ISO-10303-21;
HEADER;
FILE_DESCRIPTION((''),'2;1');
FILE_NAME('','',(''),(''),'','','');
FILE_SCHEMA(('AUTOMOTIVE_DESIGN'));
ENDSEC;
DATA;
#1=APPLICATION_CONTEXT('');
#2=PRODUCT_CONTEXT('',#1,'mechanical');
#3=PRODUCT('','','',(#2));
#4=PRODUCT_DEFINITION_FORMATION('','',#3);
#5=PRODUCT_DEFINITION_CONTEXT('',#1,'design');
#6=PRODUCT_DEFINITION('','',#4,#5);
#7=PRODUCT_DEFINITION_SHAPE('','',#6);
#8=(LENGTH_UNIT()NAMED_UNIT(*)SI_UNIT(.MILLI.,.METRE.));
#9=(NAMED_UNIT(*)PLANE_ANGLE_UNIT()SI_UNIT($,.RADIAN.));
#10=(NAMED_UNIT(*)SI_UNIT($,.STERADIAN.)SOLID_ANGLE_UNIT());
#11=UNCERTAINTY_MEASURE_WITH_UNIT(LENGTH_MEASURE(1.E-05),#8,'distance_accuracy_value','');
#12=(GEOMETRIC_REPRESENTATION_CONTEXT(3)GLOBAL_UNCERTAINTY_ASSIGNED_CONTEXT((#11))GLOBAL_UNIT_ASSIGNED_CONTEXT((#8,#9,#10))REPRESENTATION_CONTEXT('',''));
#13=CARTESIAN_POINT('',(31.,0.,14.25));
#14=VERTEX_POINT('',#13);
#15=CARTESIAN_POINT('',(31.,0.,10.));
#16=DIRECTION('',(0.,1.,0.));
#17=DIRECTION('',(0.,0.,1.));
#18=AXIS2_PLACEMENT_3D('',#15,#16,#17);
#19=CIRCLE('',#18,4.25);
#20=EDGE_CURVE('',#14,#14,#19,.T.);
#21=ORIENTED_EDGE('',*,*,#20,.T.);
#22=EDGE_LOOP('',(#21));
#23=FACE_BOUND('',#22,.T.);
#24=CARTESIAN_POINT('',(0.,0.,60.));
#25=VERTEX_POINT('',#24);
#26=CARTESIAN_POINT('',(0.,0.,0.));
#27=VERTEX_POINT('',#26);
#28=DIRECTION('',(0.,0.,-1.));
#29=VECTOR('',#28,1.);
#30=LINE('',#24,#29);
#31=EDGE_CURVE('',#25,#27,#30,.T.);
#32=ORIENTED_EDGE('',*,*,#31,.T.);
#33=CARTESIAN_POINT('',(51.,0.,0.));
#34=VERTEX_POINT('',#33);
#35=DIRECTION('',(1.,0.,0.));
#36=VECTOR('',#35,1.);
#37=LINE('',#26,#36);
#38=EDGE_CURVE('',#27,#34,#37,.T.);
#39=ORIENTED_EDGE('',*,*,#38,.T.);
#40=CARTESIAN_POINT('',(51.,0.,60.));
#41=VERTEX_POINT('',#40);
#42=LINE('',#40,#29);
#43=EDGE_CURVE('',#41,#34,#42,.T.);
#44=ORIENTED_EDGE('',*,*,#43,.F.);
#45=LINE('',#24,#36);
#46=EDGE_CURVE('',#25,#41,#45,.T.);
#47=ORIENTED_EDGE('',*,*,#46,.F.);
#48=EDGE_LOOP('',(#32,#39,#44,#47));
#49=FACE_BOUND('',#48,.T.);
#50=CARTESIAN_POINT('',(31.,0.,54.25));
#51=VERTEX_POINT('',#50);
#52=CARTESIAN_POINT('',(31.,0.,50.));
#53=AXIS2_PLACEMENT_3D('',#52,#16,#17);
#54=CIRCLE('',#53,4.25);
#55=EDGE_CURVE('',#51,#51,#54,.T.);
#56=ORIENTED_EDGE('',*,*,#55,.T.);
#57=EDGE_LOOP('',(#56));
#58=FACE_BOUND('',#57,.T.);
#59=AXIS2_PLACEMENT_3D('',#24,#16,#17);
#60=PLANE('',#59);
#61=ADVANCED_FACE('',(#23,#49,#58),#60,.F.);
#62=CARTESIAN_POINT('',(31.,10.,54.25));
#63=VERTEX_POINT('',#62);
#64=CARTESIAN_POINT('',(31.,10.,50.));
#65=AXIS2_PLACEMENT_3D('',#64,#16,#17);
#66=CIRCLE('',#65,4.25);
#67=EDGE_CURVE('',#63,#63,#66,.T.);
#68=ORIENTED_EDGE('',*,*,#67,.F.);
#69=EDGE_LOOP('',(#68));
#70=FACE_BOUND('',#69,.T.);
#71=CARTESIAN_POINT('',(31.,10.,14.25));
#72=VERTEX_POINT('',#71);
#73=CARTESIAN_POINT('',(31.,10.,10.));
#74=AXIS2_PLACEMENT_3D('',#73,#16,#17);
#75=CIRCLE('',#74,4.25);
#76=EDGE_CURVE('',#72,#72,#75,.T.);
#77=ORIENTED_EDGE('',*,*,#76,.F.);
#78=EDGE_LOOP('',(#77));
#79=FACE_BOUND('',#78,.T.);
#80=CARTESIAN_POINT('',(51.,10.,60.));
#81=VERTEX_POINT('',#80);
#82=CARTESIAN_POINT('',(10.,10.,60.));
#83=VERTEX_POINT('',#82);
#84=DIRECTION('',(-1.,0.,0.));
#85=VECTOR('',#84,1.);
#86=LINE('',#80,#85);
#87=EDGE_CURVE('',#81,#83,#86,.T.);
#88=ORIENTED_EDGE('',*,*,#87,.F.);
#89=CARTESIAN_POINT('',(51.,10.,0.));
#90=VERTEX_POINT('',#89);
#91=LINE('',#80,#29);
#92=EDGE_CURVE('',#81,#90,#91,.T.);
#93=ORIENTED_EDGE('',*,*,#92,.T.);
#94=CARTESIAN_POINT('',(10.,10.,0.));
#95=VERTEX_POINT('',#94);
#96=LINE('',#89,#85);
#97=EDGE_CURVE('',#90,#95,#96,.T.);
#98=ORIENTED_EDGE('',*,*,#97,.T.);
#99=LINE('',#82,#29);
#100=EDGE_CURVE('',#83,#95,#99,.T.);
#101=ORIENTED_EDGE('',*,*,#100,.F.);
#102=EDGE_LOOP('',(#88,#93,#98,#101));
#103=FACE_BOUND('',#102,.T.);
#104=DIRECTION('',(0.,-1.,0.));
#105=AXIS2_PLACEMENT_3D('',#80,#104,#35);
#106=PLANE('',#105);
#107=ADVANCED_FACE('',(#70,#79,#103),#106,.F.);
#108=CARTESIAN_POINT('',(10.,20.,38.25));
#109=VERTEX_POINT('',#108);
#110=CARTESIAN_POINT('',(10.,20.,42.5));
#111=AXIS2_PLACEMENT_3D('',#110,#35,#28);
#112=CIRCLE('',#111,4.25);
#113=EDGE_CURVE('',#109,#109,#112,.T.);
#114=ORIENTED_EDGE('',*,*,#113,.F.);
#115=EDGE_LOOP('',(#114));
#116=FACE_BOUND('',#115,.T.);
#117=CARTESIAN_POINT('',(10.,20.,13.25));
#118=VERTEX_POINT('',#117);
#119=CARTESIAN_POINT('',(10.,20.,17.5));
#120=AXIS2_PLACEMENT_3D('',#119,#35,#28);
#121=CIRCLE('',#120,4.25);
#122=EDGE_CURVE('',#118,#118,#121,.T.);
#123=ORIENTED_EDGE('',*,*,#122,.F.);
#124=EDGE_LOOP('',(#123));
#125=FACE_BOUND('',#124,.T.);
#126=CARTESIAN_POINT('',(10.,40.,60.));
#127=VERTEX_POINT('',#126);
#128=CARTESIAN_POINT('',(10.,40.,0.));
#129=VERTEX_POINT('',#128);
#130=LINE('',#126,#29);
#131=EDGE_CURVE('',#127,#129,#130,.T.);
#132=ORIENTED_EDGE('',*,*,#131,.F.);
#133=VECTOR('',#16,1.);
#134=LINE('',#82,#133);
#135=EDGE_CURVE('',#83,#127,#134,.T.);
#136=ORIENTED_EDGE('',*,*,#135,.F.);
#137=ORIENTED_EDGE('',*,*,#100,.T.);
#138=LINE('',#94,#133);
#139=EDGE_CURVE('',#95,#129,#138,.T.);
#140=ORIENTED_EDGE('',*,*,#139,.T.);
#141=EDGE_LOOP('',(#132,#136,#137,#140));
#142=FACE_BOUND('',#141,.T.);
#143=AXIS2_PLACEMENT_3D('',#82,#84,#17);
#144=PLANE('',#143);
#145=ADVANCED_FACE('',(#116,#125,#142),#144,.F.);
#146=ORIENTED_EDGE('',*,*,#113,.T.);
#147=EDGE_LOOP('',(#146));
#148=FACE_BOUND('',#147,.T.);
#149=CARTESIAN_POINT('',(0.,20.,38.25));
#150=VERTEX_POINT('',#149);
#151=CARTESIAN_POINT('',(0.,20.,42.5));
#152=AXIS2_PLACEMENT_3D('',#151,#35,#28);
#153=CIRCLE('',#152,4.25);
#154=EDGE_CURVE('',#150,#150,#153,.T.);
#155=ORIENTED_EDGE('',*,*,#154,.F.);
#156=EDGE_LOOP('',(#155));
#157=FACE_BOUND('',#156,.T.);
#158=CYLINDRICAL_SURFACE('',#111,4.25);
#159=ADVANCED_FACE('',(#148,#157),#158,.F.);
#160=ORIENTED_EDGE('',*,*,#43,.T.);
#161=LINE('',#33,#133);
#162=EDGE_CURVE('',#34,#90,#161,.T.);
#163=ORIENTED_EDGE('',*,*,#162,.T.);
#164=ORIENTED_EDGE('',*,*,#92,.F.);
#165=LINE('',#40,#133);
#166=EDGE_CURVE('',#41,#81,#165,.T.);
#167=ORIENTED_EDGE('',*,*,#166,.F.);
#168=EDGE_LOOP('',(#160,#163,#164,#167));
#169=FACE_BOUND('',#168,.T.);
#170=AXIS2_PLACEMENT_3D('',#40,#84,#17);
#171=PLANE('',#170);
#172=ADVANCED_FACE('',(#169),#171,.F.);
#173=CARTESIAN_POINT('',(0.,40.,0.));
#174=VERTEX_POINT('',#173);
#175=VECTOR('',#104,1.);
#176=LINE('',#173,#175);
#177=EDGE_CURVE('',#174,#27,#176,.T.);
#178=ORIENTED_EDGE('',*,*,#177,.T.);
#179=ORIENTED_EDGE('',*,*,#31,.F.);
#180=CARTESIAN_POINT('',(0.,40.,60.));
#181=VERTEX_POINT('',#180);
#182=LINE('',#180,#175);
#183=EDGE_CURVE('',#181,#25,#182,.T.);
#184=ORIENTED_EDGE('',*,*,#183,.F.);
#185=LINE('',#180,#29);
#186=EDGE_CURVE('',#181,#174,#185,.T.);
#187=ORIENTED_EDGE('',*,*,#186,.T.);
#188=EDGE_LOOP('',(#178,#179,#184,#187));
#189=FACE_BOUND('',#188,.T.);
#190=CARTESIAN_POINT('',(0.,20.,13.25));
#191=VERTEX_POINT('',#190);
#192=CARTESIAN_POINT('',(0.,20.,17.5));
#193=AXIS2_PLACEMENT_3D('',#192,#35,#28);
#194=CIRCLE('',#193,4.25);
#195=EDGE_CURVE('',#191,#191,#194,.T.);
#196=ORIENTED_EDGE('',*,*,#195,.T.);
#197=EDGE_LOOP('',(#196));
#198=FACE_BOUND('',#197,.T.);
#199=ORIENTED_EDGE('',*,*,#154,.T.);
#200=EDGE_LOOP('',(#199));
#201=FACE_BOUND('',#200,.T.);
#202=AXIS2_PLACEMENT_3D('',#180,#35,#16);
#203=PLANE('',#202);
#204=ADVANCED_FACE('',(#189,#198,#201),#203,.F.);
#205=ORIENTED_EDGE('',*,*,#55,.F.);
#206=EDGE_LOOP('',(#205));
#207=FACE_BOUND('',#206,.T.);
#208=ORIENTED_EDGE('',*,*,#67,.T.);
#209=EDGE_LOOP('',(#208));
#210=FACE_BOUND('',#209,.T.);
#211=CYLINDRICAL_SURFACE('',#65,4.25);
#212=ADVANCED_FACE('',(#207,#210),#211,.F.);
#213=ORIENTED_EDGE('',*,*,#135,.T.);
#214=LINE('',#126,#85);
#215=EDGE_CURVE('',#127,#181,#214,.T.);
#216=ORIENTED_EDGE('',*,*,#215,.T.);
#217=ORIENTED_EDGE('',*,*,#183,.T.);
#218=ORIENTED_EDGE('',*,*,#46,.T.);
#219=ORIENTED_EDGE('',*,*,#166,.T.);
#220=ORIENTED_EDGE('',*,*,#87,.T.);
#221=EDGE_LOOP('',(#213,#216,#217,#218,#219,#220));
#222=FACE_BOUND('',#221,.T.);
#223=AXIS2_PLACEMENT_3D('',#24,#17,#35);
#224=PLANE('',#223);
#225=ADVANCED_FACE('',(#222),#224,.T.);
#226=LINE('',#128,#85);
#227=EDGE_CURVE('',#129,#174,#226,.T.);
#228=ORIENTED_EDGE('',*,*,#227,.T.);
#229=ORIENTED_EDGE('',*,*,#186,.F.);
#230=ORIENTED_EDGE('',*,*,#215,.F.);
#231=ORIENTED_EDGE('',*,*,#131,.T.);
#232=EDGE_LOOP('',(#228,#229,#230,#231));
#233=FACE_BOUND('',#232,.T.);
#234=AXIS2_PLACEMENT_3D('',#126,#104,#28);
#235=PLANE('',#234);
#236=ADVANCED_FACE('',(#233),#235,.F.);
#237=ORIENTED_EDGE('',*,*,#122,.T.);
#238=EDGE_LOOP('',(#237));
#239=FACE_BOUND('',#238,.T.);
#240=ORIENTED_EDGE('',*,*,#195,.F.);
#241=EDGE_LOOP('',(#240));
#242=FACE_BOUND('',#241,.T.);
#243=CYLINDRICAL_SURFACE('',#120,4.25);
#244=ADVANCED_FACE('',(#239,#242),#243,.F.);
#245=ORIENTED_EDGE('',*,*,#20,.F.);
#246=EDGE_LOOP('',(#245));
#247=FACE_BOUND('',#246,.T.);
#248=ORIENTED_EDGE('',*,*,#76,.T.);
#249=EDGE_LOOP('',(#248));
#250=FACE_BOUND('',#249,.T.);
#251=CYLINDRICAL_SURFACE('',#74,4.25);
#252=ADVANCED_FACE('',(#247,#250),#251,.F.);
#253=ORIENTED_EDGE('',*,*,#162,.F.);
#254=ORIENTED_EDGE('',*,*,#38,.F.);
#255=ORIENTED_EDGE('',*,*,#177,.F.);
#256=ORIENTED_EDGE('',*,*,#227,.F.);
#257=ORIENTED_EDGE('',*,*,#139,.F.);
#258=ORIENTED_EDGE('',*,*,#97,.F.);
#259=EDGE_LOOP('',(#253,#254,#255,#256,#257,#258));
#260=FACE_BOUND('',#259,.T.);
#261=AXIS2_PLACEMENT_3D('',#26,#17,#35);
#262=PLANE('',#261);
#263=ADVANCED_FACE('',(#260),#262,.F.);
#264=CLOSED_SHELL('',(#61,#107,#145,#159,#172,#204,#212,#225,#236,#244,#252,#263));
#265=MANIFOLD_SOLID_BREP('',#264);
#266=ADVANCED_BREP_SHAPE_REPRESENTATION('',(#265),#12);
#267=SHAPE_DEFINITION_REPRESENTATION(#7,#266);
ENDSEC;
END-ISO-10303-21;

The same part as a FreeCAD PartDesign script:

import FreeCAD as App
import Part
import Sketcher
Q = App.Units.Quantity


def add_polygon(sketch, points):
    """Adds a closed chain of lines whose ends are joined by coincident constraints."""
    first, n = sketch.GeometryCount, len(points)
    for a, b in zip(points, points[1:] + points[:1]):
        sketch.addGeometry(Part.LineSegment(App.Vector(*a, 0), App.Vector(*b, 0)), False)
    for i in range(n):
        sketch.addConstraint(Sketcher.Constraint("Coincident", first + i, 2, first + (i + 1) % n, 1))

doc = App.newDocument("Part")
body = doc.addObject("PartDesign::Body", "Body")

# Sketch on XY plane
sketch1 = body.newObject("Sketcher::SketchObject", "Sketch")
sketch1.AttachmentSupport = (doc.getObject("XY_Plane"), [""])
sketch1.MapMode = "FlatFace"
add_polygon(sketch1, [(0, 40), (0, 0), (51, 0), (51, 10), (10, 10), (10, 40)])  # lines 0-5
sketch1.addConstraint([
    Sketcher.Constraint("Vertical", 0),
    Sketcher.Constraint("Horizontal", 1),
    Sketcher.Constraint("Vertical", 2),
    Sketcher.Constraint("Horizontal", 3),
    Sketcher.Constraint("Vertical", 4),
    Sketcher.Constraint("Horizontal", 5),
    Sketcher.Constraint("Coincident", 0, 2, -1, 1),
    Sketcher.Constraint("Equal", 5, 2),
    Sketcher.Constraint("DistanceX", 1, 1, 1, 2, Q("51 mm")),
    Sketcher.Constraint("DistanceX", 3, 2, 3, 1, Q("41 mm")),
    Sketcher.Constraint("DistanceY", 0, 2, 0, 1, Q("40 mm")),
])
pad1 = body.newObject("PartDesign::Pad", "Pad")
pad1.Profile = sketch1
pad1.Length = 60

# Sketch on YZ plane
sketch2 = body.newObject("Sketcher::SketchObject", "Sketch001")
sketch2.AttachmentSupport = (doc.getObject("YZ_Plane"), [""])
sketch2.MapMode = "FlatFace"
sketch2.AttachmentOffset = App.Placement(App.Vector(0, 0, 10), App.Rotation())
sketch2.addGeometry([
    Part.Circle(App.Vector(20, 42.5, 0), App.Vector(0, 0, 1), 4.2),
    Part.Circle(App.Vector(20, 17.5, 0), App.Vector(0, 0, 1), 4.2),
], False)
sketch2.addConstraint([
    Sketcher.Constraint("Equal", 0, 1),
    Sketcher.Constraint("Vertical", 0, 3, 1, 3),
    Sketcher.Constraint("Diameter", 0, Q("8.5 mm")),
    Sketcher.Constraint("DistanceX", -1, 1, 0, 3, Q("20 mm")),
    Sketcher.Constraint("DistanceY", 1, 3, 0, 3, Q("25 mm")),
    Sketcher.Constraint("DistanceY", -1, 1, 0, 3, Q("42.5 mm")),
])
doc.recompute()
hole = body.newObject("PartDesign::Hole", "Hole")
hole.Profile = sketch2
hole.ThreadType = "None"
hole.Diameter = 8.5
hole.DepthType = "ThroughAll"

# Sketch on XZ plane
sketch3 = body.newObject("Sketcher::SketchObject", "Sketch002")
sketch3.AttachmentSupport = (doc.getObject("XZ_Plane"), [""])
sketch3.MapMode = "FlatFace"
sketch3.AttachmentOffset = App.Placement(App.Vector(0, 0, -10), App.Rotation())
sketch3.addGeometry([
    Part.Circle(App.Vector(31, 50, 0), App.Vector(0, 0, 1), 4.2),
    Part.Circle(App.Vector(31, 10, 0), App.Vector(0, 0, 1), 4.2),
], False)
sketch3.addConstraint([
    Sketcher.Constraint("Equal", 0, 1),
    Sketcher.Constraint("Vertical", 0, 3, 1, 3),
    Sketcher.Constraint("Diameter", 0, Q("8.5 mm")),
    Sketcher.Constraint("DistanceX", -1, 1, 0, 3, Q("31 mm")),
    Sketcher.Constraint("DistanceY", -1, 1, 0, 3, Q("50 mm")),
    Sketcher.Constraint("DistanceY", -1, 1, 1, 3, Q("10 mm")),
])
doc.recompute()
hole2 = body.newObject("PartDesign::Hole", "Hole001")
hole2.Profile = sketch3
hole2.ThreadType = "None"
hole2.Diameter = 8.5
hole2.DepthType = "ThroughAll"
hole2.Reversed = True

doc.recompute()
